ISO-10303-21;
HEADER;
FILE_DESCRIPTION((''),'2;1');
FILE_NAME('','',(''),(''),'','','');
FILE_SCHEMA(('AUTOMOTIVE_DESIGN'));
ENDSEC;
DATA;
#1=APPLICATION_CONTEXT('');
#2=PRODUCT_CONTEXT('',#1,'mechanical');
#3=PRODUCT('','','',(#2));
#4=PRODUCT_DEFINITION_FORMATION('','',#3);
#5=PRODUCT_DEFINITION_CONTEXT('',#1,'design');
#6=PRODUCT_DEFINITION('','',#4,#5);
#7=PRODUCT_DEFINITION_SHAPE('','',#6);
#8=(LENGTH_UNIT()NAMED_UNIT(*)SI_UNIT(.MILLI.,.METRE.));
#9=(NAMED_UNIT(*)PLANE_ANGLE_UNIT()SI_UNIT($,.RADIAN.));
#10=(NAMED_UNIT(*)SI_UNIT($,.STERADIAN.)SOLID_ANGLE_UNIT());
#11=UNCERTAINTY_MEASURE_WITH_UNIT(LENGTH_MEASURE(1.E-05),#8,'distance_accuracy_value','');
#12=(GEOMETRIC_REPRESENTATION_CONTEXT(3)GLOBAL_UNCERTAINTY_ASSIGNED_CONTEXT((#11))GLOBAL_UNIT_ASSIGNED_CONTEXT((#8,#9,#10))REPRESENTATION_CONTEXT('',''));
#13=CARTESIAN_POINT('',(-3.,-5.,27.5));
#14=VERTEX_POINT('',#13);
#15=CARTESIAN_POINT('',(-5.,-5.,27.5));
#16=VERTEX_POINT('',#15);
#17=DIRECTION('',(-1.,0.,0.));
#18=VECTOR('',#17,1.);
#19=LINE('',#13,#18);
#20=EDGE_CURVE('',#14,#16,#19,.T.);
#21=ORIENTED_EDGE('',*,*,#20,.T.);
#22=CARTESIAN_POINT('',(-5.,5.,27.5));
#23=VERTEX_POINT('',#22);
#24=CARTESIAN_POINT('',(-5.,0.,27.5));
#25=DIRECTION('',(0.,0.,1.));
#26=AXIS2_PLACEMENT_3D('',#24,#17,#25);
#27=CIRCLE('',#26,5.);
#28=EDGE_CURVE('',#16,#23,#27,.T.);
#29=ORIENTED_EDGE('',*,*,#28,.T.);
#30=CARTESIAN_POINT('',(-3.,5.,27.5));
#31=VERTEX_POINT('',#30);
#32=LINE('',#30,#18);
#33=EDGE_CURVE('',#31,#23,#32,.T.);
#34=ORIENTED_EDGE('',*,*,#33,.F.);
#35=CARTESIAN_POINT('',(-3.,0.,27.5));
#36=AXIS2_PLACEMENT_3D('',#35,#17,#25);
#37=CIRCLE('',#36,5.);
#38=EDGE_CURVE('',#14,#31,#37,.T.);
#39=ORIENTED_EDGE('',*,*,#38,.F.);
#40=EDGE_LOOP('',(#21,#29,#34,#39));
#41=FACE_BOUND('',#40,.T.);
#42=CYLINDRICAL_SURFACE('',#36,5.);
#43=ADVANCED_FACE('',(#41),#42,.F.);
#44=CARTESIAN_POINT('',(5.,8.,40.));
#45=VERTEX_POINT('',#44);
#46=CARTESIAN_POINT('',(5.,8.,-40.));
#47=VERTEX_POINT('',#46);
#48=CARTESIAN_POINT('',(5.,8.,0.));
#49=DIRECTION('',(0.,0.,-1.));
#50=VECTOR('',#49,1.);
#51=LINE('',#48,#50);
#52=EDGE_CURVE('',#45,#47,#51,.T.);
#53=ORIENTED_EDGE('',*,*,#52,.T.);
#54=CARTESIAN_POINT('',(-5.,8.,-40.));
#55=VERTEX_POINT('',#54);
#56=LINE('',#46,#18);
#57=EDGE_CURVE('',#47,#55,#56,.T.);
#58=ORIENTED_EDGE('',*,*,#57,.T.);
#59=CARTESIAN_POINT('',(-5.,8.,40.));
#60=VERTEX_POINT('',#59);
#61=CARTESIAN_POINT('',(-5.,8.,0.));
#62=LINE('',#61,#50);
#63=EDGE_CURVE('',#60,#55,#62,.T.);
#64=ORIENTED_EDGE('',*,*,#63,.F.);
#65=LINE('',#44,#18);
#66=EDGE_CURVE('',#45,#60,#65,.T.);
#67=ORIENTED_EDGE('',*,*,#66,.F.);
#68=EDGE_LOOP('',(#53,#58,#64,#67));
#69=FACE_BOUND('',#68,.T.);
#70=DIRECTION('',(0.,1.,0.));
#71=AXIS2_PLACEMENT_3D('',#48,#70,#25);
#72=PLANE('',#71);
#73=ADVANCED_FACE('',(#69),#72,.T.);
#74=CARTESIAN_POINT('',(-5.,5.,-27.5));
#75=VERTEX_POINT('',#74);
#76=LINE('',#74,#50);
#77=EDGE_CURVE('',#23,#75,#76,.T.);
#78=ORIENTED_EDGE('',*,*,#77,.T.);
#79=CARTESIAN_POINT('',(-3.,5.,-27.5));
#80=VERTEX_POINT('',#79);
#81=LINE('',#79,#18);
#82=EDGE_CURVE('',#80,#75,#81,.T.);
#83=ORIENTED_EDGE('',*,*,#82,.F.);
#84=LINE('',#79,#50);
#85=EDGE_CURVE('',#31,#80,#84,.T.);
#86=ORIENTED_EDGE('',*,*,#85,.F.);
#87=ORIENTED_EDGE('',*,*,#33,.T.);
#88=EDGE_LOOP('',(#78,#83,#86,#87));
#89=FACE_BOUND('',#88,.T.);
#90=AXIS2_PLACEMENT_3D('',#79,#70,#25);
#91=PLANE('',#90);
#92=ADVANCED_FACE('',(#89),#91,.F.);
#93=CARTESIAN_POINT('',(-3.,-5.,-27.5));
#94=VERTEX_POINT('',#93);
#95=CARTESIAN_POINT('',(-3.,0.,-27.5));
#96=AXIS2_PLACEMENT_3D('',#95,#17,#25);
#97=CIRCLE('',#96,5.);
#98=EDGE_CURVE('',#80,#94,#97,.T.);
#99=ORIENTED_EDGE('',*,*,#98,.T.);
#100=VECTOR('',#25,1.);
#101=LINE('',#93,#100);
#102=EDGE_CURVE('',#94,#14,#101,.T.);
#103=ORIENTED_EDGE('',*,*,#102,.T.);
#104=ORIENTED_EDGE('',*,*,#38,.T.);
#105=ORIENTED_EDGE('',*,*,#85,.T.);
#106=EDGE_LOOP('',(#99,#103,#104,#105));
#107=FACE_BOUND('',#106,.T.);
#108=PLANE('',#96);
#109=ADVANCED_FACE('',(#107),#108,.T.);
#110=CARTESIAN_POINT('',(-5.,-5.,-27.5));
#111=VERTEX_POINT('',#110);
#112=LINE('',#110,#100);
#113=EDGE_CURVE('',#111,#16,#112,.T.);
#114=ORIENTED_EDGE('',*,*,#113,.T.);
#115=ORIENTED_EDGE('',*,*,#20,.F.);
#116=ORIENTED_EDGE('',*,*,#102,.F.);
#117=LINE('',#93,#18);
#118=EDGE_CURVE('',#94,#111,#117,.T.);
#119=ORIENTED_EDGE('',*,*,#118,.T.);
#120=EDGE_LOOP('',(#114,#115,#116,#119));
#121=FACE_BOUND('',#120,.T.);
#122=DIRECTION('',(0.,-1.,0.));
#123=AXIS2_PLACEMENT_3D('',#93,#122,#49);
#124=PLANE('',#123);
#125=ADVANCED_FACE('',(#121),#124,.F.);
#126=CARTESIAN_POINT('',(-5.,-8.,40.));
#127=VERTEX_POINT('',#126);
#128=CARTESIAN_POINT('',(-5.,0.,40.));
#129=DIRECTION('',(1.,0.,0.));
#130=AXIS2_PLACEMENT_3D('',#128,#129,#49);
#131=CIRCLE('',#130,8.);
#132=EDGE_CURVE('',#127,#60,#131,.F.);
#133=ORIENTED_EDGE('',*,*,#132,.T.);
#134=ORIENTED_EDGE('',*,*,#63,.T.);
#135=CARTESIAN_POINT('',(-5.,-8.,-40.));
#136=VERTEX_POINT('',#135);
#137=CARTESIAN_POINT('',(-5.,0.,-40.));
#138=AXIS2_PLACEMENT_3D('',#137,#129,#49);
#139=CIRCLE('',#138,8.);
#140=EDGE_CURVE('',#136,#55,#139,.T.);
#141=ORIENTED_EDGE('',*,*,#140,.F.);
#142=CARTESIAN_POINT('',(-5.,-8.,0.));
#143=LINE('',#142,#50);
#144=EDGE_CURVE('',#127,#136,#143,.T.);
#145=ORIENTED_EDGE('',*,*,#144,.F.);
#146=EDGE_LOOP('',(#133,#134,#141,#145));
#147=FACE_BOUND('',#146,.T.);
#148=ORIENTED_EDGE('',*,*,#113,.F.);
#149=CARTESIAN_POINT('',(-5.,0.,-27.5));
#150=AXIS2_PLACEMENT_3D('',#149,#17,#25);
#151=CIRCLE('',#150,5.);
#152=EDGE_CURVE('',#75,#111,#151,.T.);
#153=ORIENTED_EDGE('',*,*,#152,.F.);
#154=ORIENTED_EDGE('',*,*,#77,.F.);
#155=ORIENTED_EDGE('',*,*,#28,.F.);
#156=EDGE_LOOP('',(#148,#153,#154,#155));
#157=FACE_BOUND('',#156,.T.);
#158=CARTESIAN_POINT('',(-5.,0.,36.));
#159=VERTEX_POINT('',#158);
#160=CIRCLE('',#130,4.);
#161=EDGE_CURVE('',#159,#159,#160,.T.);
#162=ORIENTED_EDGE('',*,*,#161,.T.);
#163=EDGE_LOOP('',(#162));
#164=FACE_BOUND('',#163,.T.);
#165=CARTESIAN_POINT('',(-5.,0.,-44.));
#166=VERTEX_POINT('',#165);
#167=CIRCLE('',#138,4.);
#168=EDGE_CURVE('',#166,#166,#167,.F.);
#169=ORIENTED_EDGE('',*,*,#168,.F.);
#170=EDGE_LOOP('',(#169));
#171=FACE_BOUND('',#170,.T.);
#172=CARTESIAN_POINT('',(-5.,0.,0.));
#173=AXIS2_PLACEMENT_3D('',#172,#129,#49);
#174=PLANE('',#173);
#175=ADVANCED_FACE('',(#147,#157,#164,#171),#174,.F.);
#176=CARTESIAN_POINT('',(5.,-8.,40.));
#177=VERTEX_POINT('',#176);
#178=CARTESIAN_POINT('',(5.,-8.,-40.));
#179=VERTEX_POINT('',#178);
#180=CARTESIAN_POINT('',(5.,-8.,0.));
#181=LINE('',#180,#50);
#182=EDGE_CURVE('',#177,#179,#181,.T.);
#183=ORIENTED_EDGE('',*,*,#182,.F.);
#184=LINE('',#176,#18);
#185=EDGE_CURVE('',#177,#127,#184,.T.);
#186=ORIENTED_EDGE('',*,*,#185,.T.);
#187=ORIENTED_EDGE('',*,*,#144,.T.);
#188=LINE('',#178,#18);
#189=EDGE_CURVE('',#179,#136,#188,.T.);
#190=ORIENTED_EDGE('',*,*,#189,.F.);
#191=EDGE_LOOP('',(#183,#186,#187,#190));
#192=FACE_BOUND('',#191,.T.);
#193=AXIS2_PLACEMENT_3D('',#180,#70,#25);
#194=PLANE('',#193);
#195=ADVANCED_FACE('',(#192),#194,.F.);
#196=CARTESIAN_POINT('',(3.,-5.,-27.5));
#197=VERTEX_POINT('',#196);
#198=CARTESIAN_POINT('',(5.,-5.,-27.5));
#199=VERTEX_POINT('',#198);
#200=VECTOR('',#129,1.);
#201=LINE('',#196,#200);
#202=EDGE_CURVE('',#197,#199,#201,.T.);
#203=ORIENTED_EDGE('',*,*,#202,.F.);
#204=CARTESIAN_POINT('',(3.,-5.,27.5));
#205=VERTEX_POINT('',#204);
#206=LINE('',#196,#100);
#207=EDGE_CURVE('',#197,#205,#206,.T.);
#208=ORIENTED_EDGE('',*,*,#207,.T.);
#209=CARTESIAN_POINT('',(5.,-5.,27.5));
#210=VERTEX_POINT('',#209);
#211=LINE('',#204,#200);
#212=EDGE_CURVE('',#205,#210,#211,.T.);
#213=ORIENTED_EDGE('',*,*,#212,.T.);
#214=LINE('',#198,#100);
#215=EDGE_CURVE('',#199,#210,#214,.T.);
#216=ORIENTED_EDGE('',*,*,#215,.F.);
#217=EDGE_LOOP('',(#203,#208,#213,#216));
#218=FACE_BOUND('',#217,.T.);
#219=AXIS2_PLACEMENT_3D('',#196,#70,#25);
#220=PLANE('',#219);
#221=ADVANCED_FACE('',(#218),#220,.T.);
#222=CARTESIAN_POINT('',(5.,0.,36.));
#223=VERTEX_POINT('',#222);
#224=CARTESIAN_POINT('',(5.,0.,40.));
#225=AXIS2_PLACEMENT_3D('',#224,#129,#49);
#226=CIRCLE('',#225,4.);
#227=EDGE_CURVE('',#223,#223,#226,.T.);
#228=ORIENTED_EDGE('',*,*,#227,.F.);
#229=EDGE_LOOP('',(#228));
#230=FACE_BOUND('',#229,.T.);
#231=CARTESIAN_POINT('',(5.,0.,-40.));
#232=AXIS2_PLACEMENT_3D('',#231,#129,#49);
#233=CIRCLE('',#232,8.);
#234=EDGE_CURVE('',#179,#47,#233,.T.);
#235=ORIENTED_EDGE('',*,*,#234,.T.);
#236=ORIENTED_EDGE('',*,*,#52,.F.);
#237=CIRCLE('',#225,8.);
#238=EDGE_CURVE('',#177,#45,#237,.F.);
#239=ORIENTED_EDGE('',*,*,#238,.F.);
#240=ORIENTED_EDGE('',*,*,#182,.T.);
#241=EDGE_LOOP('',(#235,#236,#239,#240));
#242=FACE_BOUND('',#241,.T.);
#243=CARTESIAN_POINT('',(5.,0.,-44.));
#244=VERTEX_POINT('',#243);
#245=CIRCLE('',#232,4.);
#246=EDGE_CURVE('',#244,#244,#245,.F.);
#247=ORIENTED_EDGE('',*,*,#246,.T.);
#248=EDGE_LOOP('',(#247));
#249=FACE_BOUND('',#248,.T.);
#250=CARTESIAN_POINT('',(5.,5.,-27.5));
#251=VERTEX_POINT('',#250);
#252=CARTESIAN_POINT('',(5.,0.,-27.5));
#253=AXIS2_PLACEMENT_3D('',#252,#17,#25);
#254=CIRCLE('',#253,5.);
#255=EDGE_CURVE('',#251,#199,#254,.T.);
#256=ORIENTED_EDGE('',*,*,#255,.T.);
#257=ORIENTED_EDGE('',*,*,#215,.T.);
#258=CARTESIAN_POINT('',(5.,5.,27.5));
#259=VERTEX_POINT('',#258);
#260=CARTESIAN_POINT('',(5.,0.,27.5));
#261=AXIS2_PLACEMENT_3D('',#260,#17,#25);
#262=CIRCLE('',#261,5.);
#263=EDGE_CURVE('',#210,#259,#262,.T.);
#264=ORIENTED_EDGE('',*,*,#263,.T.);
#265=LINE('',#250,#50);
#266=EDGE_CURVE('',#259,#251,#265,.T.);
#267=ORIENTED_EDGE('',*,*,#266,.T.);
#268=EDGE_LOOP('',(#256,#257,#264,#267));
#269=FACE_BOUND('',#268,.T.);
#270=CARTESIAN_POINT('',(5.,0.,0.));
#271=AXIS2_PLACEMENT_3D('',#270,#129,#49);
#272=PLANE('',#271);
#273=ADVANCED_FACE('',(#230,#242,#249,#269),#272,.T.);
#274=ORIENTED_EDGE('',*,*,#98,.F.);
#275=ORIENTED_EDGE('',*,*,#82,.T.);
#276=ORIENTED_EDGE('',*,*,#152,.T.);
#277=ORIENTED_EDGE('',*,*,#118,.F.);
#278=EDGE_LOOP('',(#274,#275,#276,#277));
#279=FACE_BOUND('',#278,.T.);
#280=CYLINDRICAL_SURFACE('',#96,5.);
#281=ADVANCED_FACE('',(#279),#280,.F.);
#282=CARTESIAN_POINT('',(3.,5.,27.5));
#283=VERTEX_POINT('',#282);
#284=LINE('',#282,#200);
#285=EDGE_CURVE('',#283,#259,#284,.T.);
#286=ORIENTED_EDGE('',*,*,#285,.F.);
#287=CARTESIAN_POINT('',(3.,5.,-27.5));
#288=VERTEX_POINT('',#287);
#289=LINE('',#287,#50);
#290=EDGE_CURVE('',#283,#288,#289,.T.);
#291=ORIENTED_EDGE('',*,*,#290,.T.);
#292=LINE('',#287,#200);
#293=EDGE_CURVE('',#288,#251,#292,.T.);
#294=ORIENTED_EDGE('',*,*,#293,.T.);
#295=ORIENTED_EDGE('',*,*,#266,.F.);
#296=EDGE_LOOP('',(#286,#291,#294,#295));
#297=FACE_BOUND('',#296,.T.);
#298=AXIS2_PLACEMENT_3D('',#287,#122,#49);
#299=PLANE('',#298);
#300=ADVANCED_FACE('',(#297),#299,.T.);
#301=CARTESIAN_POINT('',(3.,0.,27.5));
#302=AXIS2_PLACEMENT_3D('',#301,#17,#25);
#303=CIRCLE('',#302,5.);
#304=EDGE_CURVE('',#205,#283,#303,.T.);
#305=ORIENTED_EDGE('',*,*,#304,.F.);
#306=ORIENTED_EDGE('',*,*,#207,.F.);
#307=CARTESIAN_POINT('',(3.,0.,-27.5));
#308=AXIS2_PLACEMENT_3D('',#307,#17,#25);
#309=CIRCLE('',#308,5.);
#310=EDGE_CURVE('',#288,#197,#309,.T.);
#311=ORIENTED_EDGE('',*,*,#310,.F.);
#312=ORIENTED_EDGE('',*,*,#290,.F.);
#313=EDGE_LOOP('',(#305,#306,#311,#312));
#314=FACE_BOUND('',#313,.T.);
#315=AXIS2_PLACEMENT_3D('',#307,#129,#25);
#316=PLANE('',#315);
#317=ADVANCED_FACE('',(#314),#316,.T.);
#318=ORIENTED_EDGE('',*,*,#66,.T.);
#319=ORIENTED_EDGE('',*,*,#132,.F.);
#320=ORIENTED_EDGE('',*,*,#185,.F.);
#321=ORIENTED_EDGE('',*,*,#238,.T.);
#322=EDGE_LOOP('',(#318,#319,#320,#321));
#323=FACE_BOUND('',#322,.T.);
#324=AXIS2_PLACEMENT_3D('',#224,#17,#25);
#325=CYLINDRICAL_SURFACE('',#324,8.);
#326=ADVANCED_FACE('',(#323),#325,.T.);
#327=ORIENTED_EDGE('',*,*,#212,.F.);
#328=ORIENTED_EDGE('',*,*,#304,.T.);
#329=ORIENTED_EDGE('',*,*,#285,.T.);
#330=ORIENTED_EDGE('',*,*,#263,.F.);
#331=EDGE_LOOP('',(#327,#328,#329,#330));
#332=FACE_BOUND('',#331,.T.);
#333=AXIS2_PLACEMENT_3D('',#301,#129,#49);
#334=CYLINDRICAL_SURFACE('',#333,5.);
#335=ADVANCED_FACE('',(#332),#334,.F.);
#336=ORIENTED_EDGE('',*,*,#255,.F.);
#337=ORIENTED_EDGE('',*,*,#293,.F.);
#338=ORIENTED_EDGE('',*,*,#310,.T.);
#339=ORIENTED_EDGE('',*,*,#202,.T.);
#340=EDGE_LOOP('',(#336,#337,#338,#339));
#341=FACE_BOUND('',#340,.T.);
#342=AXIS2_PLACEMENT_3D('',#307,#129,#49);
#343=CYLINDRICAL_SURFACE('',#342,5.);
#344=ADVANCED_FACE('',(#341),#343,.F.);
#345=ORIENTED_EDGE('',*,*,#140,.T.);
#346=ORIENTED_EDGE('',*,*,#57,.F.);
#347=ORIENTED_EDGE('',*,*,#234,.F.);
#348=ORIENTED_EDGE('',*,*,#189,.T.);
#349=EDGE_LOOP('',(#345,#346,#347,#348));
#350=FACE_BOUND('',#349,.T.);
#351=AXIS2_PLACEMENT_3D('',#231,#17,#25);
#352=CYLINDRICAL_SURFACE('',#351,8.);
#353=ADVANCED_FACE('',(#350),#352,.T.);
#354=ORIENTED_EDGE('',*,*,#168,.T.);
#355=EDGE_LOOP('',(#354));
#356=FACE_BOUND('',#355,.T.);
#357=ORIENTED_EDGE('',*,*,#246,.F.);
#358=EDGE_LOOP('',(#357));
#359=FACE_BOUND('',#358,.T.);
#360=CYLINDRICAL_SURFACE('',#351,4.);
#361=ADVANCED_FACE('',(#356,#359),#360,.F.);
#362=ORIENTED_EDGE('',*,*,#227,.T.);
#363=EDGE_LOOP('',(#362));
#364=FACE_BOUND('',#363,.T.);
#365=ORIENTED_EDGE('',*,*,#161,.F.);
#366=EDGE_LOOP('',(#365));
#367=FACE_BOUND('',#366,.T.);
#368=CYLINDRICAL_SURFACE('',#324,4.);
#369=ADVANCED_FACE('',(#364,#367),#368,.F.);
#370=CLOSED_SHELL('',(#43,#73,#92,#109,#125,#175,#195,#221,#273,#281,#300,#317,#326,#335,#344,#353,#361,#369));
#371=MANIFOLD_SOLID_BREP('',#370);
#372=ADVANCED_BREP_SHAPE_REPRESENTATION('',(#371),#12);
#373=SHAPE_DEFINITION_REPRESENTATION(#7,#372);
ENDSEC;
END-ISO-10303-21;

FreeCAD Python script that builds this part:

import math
import FreeCAD as App
import Part
import Sketcher
Q = App.Units.Quantity

doc = App.newDocument("Part")
params = doc.addObject("Spreadsheet::Sheet", "Params")
for row, (alias, value) in enumerate([
    ("sketch1_diameter", "8 mm"),
    ("sketch1_radius", "8 mm"),
    ("sketch1_height", "80 mm"),
    ("pad1_length", "10 mm"),
    ("sketch2_radius", "5 mm"),
    ("sketch2_height", "55 mm"),
    ("pocket1_length", "2 mm"),
], start=1):
    params.set(f"A{row}", alias)
    params.set(f"B{row}", "=" + value)
    params.setAlias(f"B{row}", alias)

body = doc.addObject("PartDesign::Body", "Body")

sketch1 = body.newObject("Sketcher::SketchObject", "Sketch")
sketch1.AttachmentSupport = (doc.getObject("YZ_Plane"), [""])
sketch1.MapMode = "FlatFace"
sketch1.addGeometry(Part.LineSegment(App.Vector(8, -40, 0), App.Vector(8, 40, 0)), False)
sketch1.addGeometry(Part.ArcOfCircle(Part.Circle(App.Vector(0, 40, 0), App.Vector(0, 0, 1), 8), math.radians(0), math.radians(180)), False)
sketch1.addGeometry(Part.LineSegment(App.Vector(-8, 40, 0), App.Vector(-8, -40, 0)), False)
sketch1.addGeometry(Part.ArcOfCircle(Part.Circle(App.Vector(0, -40, 0), App.Vector(0, 0, 1), 8), math.radians(180), math.radians(360)), False)
sketch1.addGeometry(Part.Circle(App.Vector(0, -40, 0), App.Vector(0, 0, 1), 4), False)
sketch1.addGeometry(Part.Circle(App.Vector(0, 40, 0), App.Vector(0, 0, 1), 4), False)
sketch1.addConstraint(Sketcher.Constraint("Tangent", 0, 2, 1, 1))
sketch1.addConstraint(Sketcher.Constraint("Tangent", 1, 2, 2, 1))
sketch1.addConstraint(Sketcher.Constraint("Tangent", 2, 2, 3, 1))
sketch1.addConstraint(Sketcher.Constraint("Tangent", 3, 2, 0, 1))
sketch1.addConstraint(Sketcher.Constraint("Vertical", 0))
sketch1.addConstraint(Sketcher.Constraint("Vertical", 2))
sketch1.addConstraint(Sketcher.Constraint("Coincident", 4, 3, 3, 3))
sketch1.addConstraint(Sketcher.Constraint("Coincident", 5, 3, 1, 3))
sketch1.addConstraint(Sketcher.Constraint("Equal", 4, 5))
sketch1.addConstraint(Sketcher.Constraint("Symmetric", 1, 3, 3, 3, -1, 1))
sketch1.addConstraint(Sketcher.Constraint("Diameter", 4, Q("8 mm")))
sketch1.addConstraint(Sketcher.Constraint("Radius", 1, Q("8 mm")))
sketch1.addConstraint(Sketcher.Constraint("DistanceY", 0, 1, 0, 2, Q("80 mm")))
sketch1.setExpression("Constraints[10]", "Params.sketch1_diameter")
sketch1.setExpression("Constraints[11]", "Params.sketch1_radius")
sketch1.setExpression("Constraints[12]", "Params.sketch1_height")
pad1 = body.newObject("PartDesign::Pad", "Pad")
pad1.Profile = sketch1
pad1.setExpression("Length", "Params.pad1_length")
pad1.Midplane = True

sketch2 = body.newObject("Sketcher::SketchObject", "Sketch001")
sketch2.AttachmentSupport = (doc.getObject("YZ_Plane"), [""])
sketch2.MapMode = "FlatFace"
sketch2.AttachmentOffset = App.Placement(App.Vector(0, 0, -5), App.Rotation())
sketch2.addGeometry(Part.LineSegment(App.Vector(5, 28, 0), App.Vector(5, -28, 0)), False)
sketch2.addGeometry(Part.ArcOfCircle(Part.Circle(App.Vector(0, -28, 0), App.Vector(0, 0, 1), 5), math.radians(180), math.radians(360)), False)
sketch2.addGeometry(Part.LineSegment(App.Vector(-5, -28, 0), App.Vector(-5, 28, 0)), False)
sketch2.addGeometry(Part.ArcOfCircle(Part.Circle(App.Vector(0, 28, 0), App.Vector(0, 0, 1), 5), math.radians(0), math.radians(180)), False)
sketch2.addConstraint(Sketcher.Constraint("Tangent", 0, 2, 1, 2))
sketch2.addConstraint(Sketcher.Constraint("Tangent", 1, 1, 2, 1))
sketch2.addConstraint(Sketcher.Constraint("Tangent", 2, 2, 3, 2))
sketch2.addConstraint(Sketcher.Constraint("Tangent", 3, 1, 0, 1))
sketch2.addConstraint(Sketcher.Constraint("Vertical", 0))
sketch2.addConstraint(Sketcher.Constraint("Vertical", 2))
sketch2.addConstraint(Sketcher.Constraint("Symmetric", 1, 3, 3, 3, -1, 1))
sketch2.addConstraint(Sketcher.Constraint("Radius", 1, Q("5 mm")))
sketch2.addConstraint(Sketcher.Constraint("DistanceY", 0, 2, 0, 1, Q("55 mm")))
sketch2.setExpression("Constraints[7]", "Params.sketch2_radius")
sketch2.setExpression("Constraints[8]", "Params.sketch2_height")
pocket1 = body.newObject("PartDesign::Pocket", "Pocket")
pocket1.Profile = sketch2
pocket1.setExpression("Length", "Params.pocket1_length")
pocket1.Reversed = True
doc.recompute()

mirrored = body.newObject("PartDesign::Mirrored", "Mirrored")
mirrored.Originals = [pocket1]
mirrored.MirrorPlane = (doc.getObject("YZ_Plane"), [""])
body.Tip = mirrored

doc.recompute()
